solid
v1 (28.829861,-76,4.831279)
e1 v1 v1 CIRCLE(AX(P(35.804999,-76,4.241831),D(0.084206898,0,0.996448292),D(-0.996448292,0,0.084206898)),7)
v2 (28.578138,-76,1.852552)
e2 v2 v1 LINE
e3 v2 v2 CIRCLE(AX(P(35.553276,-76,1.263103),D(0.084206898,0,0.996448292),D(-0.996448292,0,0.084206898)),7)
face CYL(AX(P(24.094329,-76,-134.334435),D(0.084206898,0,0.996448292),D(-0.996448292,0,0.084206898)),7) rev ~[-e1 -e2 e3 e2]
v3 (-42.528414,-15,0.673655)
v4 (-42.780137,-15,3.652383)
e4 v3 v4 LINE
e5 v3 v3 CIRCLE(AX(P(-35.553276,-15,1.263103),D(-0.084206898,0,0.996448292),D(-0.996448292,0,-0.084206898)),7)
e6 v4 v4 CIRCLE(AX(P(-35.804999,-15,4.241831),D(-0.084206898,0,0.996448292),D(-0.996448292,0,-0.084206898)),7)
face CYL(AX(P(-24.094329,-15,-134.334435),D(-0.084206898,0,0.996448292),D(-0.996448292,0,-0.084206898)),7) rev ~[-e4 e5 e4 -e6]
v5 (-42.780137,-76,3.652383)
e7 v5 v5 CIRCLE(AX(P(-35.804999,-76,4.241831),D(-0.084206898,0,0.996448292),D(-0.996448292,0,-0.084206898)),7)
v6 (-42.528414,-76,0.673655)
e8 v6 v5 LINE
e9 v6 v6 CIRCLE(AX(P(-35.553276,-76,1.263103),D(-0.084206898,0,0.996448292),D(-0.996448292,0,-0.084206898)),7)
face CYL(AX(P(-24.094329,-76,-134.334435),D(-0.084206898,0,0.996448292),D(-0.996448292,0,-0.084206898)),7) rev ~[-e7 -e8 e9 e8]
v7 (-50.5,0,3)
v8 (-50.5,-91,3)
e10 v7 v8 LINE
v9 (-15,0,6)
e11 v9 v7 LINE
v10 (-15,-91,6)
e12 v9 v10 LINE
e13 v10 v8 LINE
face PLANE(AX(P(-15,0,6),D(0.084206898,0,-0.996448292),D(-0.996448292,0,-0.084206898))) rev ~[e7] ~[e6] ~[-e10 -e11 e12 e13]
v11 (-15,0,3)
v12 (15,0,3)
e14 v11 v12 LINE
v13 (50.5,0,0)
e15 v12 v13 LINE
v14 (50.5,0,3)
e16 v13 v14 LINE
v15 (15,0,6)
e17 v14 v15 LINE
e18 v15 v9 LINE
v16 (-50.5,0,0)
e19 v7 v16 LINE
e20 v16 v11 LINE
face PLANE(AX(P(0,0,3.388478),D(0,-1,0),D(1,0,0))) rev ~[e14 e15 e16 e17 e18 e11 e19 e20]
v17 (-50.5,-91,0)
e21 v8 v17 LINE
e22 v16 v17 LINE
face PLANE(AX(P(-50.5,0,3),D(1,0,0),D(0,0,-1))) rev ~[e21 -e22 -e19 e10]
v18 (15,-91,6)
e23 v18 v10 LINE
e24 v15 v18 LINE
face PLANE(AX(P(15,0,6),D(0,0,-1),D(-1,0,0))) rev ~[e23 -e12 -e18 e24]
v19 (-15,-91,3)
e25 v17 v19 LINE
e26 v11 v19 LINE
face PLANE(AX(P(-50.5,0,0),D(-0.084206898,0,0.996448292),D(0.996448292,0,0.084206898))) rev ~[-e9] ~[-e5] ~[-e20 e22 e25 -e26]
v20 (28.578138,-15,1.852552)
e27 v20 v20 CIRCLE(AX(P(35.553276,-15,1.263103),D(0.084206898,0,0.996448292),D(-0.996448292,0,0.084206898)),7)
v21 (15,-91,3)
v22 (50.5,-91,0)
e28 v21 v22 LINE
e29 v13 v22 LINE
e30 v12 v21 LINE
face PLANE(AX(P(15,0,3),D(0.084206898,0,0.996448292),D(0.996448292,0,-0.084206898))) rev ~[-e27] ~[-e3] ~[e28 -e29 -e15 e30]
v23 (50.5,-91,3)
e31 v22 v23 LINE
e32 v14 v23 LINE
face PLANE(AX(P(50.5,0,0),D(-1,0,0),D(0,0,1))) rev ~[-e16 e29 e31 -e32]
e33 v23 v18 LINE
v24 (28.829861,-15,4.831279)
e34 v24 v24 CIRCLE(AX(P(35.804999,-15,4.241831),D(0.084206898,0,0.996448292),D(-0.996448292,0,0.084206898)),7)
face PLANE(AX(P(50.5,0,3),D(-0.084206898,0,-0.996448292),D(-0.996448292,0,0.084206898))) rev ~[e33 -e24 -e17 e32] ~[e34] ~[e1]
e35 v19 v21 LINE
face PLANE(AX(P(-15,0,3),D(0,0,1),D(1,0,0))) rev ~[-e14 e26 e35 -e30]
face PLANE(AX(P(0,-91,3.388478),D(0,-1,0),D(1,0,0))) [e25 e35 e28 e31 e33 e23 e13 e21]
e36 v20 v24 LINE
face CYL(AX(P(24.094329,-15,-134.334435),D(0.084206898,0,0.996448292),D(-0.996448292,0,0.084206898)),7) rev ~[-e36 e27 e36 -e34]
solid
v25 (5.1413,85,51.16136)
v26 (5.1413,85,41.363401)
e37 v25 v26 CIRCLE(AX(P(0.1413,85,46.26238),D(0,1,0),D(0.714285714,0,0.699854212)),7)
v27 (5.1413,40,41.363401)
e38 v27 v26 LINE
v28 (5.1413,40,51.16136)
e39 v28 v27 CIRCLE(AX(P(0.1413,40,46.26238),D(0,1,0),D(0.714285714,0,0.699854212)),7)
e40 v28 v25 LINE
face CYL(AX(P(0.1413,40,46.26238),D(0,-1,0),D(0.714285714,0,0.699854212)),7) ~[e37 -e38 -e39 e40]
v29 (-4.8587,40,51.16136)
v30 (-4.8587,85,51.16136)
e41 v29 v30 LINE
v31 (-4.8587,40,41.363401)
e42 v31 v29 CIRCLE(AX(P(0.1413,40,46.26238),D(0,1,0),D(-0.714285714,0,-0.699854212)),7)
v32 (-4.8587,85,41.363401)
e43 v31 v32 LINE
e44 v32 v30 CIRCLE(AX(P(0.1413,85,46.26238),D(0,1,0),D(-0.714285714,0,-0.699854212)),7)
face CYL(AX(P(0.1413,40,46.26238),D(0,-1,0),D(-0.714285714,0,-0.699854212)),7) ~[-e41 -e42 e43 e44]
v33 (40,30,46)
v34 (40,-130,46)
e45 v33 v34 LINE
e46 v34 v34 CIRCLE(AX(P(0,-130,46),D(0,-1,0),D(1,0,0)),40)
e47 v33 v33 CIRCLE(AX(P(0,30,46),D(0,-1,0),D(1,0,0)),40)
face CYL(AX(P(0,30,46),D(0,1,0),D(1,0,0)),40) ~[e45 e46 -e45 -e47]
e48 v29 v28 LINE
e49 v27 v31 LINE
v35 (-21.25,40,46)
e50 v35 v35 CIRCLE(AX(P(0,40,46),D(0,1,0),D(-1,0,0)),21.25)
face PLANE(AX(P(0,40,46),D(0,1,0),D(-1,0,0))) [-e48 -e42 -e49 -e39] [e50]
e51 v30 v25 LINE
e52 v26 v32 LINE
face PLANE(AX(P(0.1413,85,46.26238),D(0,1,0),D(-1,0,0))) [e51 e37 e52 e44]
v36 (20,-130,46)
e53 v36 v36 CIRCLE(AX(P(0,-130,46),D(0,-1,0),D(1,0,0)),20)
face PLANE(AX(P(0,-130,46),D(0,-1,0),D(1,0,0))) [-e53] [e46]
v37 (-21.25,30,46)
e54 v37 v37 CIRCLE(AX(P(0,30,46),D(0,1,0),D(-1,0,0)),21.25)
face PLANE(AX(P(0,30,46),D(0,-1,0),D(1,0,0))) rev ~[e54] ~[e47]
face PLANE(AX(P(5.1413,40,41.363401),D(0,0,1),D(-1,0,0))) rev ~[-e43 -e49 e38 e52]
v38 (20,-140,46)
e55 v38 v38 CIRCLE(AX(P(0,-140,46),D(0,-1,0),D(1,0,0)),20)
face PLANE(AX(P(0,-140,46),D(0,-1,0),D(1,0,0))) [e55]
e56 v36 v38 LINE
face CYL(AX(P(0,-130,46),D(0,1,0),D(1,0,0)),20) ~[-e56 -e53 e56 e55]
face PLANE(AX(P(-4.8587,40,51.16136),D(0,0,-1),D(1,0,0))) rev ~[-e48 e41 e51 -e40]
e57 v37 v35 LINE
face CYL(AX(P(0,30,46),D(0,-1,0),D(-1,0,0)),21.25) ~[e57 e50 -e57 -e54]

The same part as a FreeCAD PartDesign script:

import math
import FreeCAD as App
import Part
import Sketcher


def add_polygon(sketch, points):
    """Adds a closed chain of lines whose ends are joined by coincident constraints."""
    first, n = sketch.GeometryCount, len(points)
    for a, b in zip(points, points[1:] + points[:1]):
        sketch.addGeometry(Part.LineSegment(App.Vector(*a, 0), App.Vector(*b, 0)), False)
    for i in range(n):
        sketch.addConstraint(Sketcher.Constraint("Coincident", first + i, 2, first + (i + 1) % n, 1))

doc = App.newDocument("Part")
body = doc.addObject("PartDesign::Body", "Body")

# Sketch on XZ plane
sketch1 = doc.addObject("Sketcher::SketchObject", "Sketch")
body.addObject(sketch1)
sketch1.AttachmentSupport = (doc.XZ_Plane, [""])
sketch1.MapMode = "FlatFace"
add_polygon(sketch1, [(-50.5, 3), (-50.5, 0), (-15, 3), (15, 3), (50.5, 0), (50.5, 3), (15, 6), (-15, 6)])  # lines 0-7
sketch1.addConstraint(Sketcher.Constraint("Vertical", 0))
sketch1.addConstraint(Sketcher.Constraint("Horizontal", 2))
sketch1.addConstraint(Sketcher.Constraint("Vertical", 4))
sketch1.addConstraint(Sketcher.Constraint("Horizontal", 6))
sketch1.addConstraint(Sketcher.Constraint("Symmetric", 0, 2, 3, 2, -1, 1))
sketch1.addConstraint(Sketcher.Constraint("PointOnObject", 0, 2, -1))
sketch1.addConstraint(Sketcher.Constraint("Parallel", 3, 5))
sketch1.addConstraint(Sketcher.Constraint("Parallel", 1, 7))
sketch1.addConstraint(Sketcher.Constraint("Horizontal", 2, 2, 4, 2))
sketch1.addConstraint(Sketcher.Constraint("Horizontal", 4, 2, 7, 2))
sketch1.addConstraint(Sketcher.Constraint("Vertical", 2, 2, 5, 2))
sketch1.addConstraint(Sketcher.Constraint("Equal", 1, 3))
sketch1.addConstraint(Sketcher.Constraint("DistanceX", 2, 1, 2, 2, 30.0))
sketch1.addConstraint(Sketcher.Constraint("DistanceY", 0, 2, 0, 1, 3.0))
sketch1.addConstraint(Sketcher.Constraint("DistanceX", 0, 2, 3, 2, 101.0))
pad1 = doc.addObject("PartDesign::Pad", "Pad")
body.addObject(pad1)
pad1.Profile = sketch1
pad1.Length = 91

# Sketch on an angled plane
sketch2 = doc.addObject("Sketcher::SketchObject", "Sketch001")
body.addObject(sketch2)
sketch2.Placement = App.Placement(App.Vector(-0.358085, 0, 4.237345), App.Rotation(App.Vector(0.996448292, 0, 0.084206898), App.Vector(0, -1, 0), App.Vector(0.084206898, 0, -0.996448292), "ZXY"))
sketch2.addGeometry(Part.Circle(App.Vector(-35.320639, 76, 0), App.Vector(0, 0, 1), 7), False)
sketch2.addGeometry(Part.Circle(App.Vector(-35.320639, 15, 0), App.Vector(0, 0, 1), 7), False)
sketch2.addConstraint(Sketcher.Constraint("Equal", 0, 1))
sketch2.addConstraint(Sketcher.Constraint("Vertical", 0, 3, 1, 3))
sketch2.addConstraint(Sketcher.Constraint("Diameter", 0, 14.0))
sketch2.addConstraint(Sketcher.Constraint("DistanceY", -1, 1, 0, 3, 76.0))
sketch2.addConstraint(Sketcher.Constraint("DistanceY", -1, 1, 1, 3, 15.0))
sketch2.addConstraint(Sketcher.Constraint("DistanceX", 0, 3, -1, 1, 35.320639))
doc.recompute()
hole = doc.addObject("PartDesign::Hole", "Hole")
body.addObject(hole)
hole.Profile = sketch2
hole.ThreadType = "None"
hole.Diameter = 14
hole.DepthType = "ThroughAll"

# Sketch on an angled plane
sketch3 = doc.addObject("Sketcher::SketchObject", "Sketch002")
body.addObject(sketch3)
sketch3.Placement = App.Placement(App.Vector(0.358085, 0, 4.237345), App.Rotation(App.Vector(0.996448292, 0, -0.084206898), App.Vector(0, -1, 0), App.Vector(-0.084206898, 0, -0.996448292), "ZXY"))
sketch3.addGeometry(Part.Circle(App.Vector(35.320639, 76, 0), App.Vector(0, 0, 1), 7), False)
sketch3.addGeometry(Part.Circle(App.Vector(35.320639, 15, 0), App.Vector(0, 0, 1), 7), False)
sketch3.addConstraint(Sketcher.Constraint("Equal", 0, 1))
sketch3.addConstraint(Sketcher.Constraint("Vertical", 0, 3, 1, 3))
sketch3.addConstraint(Sketcher.Constraint("Diameter", 0, 14.0))
sketch3.addConstraint(Sketcher.Constraint("DistanceY", -1, 1, 0, 3, 76.0))
sketch3.addConstraint(Sketcher.Constraint("DistanceY", -1, 1, 1, 3, 15.0))
sketch3.addConstraint(Sketcher.Constraint("DistanceX", -1, 1, 0, 3, 35.320639))
doc.recompute()
hole2 = doc.addObject("PartDesign::Hole", "Hole001")
body.addObject(hole2)
hole2.Profile = sketch3
hole2.ThreadType = "None"
hole2.Diameter = 14
hole2.DepthType = "ThroughAll"
body2 = doc.addObject("PartDesign::Body", "Body001")

# Sketch on XZ plane
sketch4 = doc.addObject("Sketcher::SketchObject", "Sketch003")
body2.addObject(sketch4)
sketch4.AttachmentSupport = (doc.getObject("XZ_Plane001"), [""])
sketch4.MapMode = "FlatFace"
sketch4.AttachmentOffset = App.Placement(App.Vector(0, 0, -30), App.Rotation())
sketch4.addGeometry(Part.Circle(App.Vector(0, 46, 0), App.Vector(0, 0, 1), 40), False)
sketch4.addConstraint(Sketcher.Constraint("PointOnObject", 0, 3, -2))
sketch4.addConstraint(Sketcher.Constraint("Diameter", 0, 80.0))
sketch4.addConstraint(Sketcher.Constraint("DistanceY", -1, 1, 0, 3, 46.0))
pad2 = doc.addObject("PartDesign::Pad", "Pad001")
body2.addObject(pad2)
pad2.Profile = sketch4
pad2.Length = 160

# Sketch on XZ plane
sketch5 = doc.addObject("Sketcher::SketchObject", "Sketch004")
body2.addObject(sketch5)
sketch5.AttachmentSupport = (doc.getObject("XZ_Plane001"), [""])
sketch5.MapMode = "FlatFace"
sketch5.AttachmentOffset = App.Placement(App.Vector(0, 0, 130), App.Rotation())
sketch5.addGeometry(Part.Circle(App.Vector(0, 46, 0), App.Vector(0, 0, 1), 20), False)
sketch5.addConstraint(Sketcher.Constraint("PointOnObject", 0, 3, -2))
sketch5.addConstraint(Sketcher.Constraint("Diameter", 0, 40.0))
sketch5.addConstraint(Sketcher.Constraint("DistanceY", -1, 1, 0, 3, 46.0))
pad3 = doc.addObject("PartDesign::Pad", "Pad002")
body2.addObject(pad3)
pad3.Profile = sketch5
pad3.Length = 10

# Sketch on XZ plane
sketch6 = doc.addObject("Sketcher::SketchObject", "Sketch005")
body2.addObject(sketch6)
sketch6.AttachmentSupport = (doc.getObject("XZ_Plane001"), [""])
sketch6.MapMode = "FlatFace"
sketch6.AttachmentOffset = App.Placement(App.Vector(0, 0, -30), App.Rotation())
sketch6.addGeometry(Part.Circle(App.Vector(0, 46, 0), App.Vector(0, 0, 1), 21.25), False)
sketch6.addConstraint(Sketcher.Constraint("PointOnObject", 0, 3, -2))
sketch6.addConstraint(Sketcher.Constraint("Diameter", 0, 42.5))
sketch6.addConstraint(Sketcher.Constraint("DistanceY", -1, 1, 0, 3, 46.0))
pad4 = doc.addObject("PartDesign::Pad", "Pad003")
body2.addObject(pad4)
pad4.Profile = sketch6
pad4.Length = 10
pad4.Reversed = True

# Sketch on XZ plane
sketch7 = doc.addObject("Sketcher::SketchObject", "Sketch006")
body2.addObject(sketch7)
sketch7.AttachmentSupport = (doc.getObject("XZ_Plane001"), [""])
sketch7.MapMode = "FlatFace"
sketch7.AttachmentOffset = App.Placement(App.Vector(0, 0, -40), App.Rotation())
sketch7.addGeometry(Part.LineSegment(App.Vector(-4.8587, 51.16136, 0), App.Vector(5.1413, 51.16136, 0)), False)
sketch7.addGeometry(Part.ArcOfCircle(Part.Circle(App.Vector(0.1413, 46.26238, 0), App.Vector(0, 0, 1), 7), math.radians(-44.415309), math.radians(44.415309)), False)
sketch7.addGeometry(Part.LineSegment(App.Vector(5.1413, 41.363401, 0), App.Vector(-4.8587, 41.363401, 0)), False)
sketch7.addGeometry(Part.ArcOfCircle(Part.Circle(App.Vector(0.1413, 46.26238, 0), App.Vector(0, 0, 1), 7), math.radians(135.584691), math.radians(224.415309)), False)
sketch7.addConstraint(Sketcher.Constraint("Coincident", 0, 2, 1, 2))
sketch7.addConstraint(Sketcher.Constraint("Coincident", 1, 1, 2, 1))
sketch7.addConstraint(Sketcher.Constraint("Coincident", 2, 2, 3, 2))
sketch7.addConstraint(Sketcher.Constraint("Coincident", 3, 1, 0, 1))
sketch7.addConstraint(Sketcher.Constraint("Horizontal", 0))
sketch7.addConstraint(Sketcher.Constraint("Horizontal", 2))
sketch7.addConstraint(Sketcher.Constraint("Coincident", 3, 3, 1, 3))
sketch7.addConstraint(Sketcher.Constraint("Equal", 1, 3))
sketch7.addConstraint(Sketcher.Constraint("Vertical", 0, 2, 1, 1))
sketch7.addConstraint(Sketcher.Constraint("Radius", 1, 7.0))
sketch7.addConstraint(Sketcher.Constraint("DistanceX", 0, 1, 0, 2, 10.0))
sketch7.addConstraint(Sketcher.Constraint("DistanceX", -1, 1, 1, 3, 0.1413))
sketch7.addConstraint(Sketcher.Constraint("DistanceY", -1, 1, 1, 1, 41.363401))
pad5 = doc.addObject("PartDesign::Pad", "Pad004")
body2.addObject(pad5)
pad5.Profile = sketch7
pad5.Length = 45
pad5.Reversed = True

doc.recompute()
